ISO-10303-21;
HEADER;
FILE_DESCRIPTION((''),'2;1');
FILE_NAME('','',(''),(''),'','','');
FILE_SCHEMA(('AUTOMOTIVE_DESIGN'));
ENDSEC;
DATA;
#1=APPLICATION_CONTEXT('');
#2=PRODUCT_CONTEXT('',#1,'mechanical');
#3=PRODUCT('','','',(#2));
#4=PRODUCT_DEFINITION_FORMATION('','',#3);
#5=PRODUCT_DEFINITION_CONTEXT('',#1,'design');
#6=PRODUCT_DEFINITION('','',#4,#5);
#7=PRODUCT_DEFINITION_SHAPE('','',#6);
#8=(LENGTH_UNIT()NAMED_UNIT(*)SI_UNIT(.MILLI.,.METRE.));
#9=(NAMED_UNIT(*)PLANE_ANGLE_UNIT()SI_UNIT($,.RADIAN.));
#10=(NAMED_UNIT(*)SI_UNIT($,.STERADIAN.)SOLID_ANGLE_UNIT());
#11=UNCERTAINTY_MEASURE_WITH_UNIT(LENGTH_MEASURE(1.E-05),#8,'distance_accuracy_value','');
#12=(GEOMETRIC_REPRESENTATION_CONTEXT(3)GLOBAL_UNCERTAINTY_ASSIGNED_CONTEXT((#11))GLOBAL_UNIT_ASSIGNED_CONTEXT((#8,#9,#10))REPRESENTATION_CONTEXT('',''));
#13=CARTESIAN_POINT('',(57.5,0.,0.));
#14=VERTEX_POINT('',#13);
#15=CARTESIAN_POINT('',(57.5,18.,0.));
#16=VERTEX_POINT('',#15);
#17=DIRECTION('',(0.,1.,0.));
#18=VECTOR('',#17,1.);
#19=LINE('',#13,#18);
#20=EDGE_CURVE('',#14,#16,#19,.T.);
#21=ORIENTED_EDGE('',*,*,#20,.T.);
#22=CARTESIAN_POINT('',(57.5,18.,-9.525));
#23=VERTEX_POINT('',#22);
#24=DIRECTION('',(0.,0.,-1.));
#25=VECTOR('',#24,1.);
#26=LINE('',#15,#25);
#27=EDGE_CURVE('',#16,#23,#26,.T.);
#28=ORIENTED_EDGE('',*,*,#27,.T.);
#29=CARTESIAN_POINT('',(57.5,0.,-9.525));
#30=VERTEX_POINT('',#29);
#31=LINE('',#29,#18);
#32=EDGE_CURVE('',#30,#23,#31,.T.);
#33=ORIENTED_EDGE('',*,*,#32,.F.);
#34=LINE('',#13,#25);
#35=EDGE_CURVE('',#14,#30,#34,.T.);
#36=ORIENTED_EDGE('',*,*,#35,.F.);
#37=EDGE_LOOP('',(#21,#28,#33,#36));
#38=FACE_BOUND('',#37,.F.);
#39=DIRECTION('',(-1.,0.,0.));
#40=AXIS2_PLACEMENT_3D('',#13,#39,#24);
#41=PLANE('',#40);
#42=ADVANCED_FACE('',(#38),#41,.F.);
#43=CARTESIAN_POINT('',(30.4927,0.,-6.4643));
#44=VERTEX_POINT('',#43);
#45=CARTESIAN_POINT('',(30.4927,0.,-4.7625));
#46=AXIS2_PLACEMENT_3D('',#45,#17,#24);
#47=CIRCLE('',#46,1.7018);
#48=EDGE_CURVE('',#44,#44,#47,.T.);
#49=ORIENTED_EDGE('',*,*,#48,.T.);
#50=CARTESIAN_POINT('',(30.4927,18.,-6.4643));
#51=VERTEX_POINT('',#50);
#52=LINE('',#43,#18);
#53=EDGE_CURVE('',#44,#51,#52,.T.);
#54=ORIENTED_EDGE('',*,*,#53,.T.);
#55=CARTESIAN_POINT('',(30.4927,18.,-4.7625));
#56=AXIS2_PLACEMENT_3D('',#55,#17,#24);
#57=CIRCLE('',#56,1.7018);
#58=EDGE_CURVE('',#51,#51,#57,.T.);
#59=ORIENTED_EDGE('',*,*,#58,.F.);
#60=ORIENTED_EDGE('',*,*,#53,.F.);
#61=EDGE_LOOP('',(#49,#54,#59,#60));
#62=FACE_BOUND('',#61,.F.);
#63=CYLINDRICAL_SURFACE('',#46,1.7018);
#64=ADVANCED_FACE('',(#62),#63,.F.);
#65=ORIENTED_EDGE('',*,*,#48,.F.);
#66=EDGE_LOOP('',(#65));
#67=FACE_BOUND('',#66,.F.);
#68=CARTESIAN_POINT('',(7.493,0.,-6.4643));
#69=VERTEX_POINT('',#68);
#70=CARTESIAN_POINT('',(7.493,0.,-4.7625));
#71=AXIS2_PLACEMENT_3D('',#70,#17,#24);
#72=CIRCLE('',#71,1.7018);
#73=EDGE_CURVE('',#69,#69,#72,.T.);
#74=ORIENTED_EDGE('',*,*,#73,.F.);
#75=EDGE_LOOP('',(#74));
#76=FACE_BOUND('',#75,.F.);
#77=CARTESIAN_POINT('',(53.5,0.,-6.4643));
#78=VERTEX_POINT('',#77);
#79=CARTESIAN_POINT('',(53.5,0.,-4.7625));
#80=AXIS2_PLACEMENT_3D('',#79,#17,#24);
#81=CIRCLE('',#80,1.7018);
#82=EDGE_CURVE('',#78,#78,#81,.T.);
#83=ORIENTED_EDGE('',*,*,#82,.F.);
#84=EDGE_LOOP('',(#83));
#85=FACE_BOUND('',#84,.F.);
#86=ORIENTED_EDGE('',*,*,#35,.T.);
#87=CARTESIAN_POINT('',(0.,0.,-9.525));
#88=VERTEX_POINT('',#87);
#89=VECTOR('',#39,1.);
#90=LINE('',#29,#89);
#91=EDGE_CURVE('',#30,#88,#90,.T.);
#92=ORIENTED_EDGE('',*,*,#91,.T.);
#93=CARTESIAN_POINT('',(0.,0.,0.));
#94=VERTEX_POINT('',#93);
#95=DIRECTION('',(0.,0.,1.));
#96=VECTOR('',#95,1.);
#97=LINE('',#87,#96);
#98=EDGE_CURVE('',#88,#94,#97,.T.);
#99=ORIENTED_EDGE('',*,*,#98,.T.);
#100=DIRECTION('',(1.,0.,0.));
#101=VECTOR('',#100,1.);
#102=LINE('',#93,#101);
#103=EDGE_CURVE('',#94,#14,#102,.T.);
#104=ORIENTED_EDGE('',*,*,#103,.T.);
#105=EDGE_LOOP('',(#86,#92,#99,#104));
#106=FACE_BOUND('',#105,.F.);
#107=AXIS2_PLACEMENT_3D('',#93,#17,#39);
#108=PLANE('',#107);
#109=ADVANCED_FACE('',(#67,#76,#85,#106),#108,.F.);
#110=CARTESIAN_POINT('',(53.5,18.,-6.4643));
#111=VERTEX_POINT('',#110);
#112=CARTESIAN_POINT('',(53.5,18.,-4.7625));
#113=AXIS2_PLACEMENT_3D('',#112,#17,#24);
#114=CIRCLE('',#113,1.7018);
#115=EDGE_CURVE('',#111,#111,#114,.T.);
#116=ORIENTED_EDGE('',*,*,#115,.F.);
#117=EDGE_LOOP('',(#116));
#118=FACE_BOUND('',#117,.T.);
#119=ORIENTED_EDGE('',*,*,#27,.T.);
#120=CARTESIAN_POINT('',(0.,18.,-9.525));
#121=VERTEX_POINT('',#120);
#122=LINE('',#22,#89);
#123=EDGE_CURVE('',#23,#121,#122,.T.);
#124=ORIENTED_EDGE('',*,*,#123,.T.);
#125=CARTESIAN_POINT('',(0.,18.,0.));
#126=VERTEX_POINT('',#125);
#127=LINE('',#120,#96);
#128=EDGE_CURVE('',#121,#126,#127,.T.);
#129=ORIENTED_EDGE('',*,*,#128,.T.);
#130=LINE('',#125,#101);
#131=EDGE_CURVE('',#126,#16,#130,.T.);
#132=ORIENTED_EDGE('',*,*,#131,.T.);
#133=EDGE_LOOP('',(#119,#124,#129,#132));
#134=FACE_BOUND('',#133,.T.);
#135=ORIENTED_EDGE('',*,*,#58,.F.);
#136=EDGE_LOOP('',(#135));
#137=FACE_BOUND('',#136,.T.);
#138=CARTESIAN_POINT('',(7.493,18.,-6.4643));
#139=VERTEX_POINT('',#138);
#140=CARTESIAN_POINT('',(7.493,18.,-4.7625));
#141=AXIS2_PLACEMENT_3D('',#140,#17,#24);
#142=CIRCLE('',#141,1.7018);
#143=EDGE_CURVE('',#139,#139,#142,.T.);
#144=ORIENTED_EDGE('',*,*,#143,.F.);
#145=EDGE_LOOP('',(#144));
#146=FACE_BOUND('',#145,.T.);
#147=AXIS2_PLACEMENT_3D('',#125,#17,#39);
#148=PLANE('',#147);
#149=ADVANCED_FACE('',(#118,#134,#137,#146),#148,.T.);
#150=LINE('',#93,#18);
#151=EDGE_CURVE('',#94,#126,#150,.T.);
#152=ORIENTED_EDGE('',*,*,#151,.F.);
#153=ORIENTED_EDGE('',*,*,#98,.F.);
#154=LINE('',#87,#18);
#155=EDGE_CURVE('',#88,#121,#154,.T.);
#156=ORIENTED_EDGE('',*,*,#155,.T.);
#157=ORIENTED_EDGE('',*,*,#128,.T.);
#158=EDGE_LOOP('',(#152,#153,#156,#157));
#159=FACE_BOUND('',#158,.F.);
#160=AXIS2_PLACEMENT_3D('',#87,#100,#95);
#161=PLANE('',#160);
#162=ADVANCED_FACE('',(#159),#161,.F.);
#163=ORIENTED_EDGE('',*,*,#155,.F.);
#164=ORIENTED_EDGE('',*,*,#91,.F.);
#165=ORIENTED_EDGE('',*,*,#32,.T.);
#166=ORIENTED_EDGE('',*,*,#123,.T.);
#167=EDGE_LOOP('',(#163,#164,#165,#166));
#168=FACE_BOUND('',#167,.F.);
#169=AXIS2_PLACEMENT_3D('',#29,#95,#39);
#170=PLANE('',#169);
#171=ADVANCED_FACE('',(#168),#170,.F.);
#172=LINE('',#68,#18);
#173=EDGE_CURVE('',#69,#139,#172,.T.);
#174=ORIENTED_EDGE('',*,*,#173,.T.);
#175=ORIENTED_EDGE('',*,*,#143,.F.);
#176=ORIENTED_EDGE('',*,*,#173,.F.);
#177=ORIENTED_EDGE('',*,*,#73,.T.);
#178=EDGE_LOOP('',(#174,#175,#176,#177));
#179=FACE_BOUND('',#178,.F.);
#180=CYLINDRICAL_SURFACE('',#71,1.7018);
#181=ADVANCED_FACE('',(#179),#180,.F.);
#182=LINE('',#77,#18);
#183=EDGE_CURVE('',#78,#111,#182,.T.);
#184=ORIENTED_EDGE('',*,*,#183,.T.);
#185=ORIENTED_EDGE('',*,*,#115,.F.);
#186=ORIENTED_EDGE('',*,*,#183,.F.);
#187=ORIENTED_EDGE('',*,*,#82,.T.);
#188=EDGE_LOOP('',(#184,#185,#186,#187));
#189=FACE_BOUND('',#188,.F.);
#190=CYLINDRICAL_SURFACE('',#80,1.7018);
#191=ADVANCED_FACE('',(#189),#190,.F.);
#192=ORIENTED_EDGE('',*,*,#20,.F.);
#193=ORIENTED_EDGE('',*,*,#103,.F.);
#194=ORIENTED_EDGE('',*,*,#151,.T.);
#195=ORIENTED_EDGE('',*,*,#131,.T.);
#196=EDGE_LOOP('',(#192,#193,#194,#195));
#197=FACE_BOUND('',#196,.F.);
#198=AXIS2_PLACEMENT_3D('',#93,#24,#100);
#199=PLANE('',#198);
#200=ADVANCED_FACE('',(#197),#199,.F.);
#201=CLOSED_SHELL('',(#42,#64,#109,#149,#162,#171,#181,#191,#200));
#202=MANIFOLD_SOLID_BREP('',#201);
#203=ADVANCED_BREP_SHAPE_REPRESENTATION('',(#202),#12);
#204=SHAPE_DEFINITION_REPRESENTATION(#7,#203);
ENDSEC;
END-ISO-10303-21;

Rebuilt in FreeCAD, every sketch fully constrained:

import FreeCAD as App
import Part
import Sketcher
from FreeCAD import Vector
Q = App.Units.Quantity


def add_polygon(sketch, points):
    """Adds a closed chain of lines whose ends are joined by coincident constraints."""
    first, n = sketch.GeometryCount, len(points)
    for a, b in zip(points, points[1:] + points[:1]):
        sketch.addGeometry(Part.LineSegment(App.Vector(*a, 0), App.Vector(*b, 0)), False)
    for i in range(n):
        sketch.addConstraint(Sketcher.Constraint("Coincident", first + i, 2, first + (i + 1) % n, 1))

doc = App.newDocument("Part")
body = doc.addObject("PartDesign::Body", "Body")

# Sketch on XZ plane
sketch1 = doc.addObject("Sketcher::SketchObject", "Sketch")
body.addObject(sketch1)
sketch1.AttachmentSupport = (doc.XZ_Plane, [""])
sketch1.MapMode = "FlatFace"
add_polygon(sketch1, [(0, -10), (0, 0), (58, 0), (58, -10)])  # lines 0-3
sketch1.addConstraint([
    Sketcher.Constraint("Vertical", 0),
    Sketcher.Constraint("Horizontal", 1),
    Sketcher.Constraint("Vertical", 2),
    Sketcher.Constraint("Horizontal", 3),
    Sketcher.Constraint("Coincident", 0, 2, -1, 1),
    Sketcher.Constraint("DistanceX", 1, 1, 1, 2, Q("57.5 mm")),
    Sketcher.Constraint("DistanceY", 0, 1, 0, 2, Q("9.525 mm")),
])
pad1 = doc.addObject("PartDesign::Pad", "Pad")
body.addObject(pad1)
pad1.Profile = sketch1
pad1.Length = 18
pad1.Reversed = True

# Sketch on XZ plane
sketch2 = doc.addObject("Sketcher::SketchObject", "Sketch001")
body.addObject(sketch2)
sketch2.AttachmentSupport = (doc.XZ_Plane, [""])
sketch2.MapMode = "FlatFace"
sketch2.addGeometry([
    Part.Circle(Vector(53.5, -4.8, 0), Vector(0, 0, 1), 1.7),
    Part.Circle(Vector(7.5, -4.8, 0), Vector(0, 0, 1), 1.7),
    Part.Circle(Vector(30.5, -4.8, 0), Vector(0, 0, 1), 1.7),
], False)
sketch2.addConstraint([
    Sketcher.Constraint("Equal", 0, 1),
    Sketcher.Constraint("Equal", 1, 2),
    Sketcher.Constraint("Horizontal", 0, 3, 1, 3),
    Sketcher.Constraint("Horizontal", 1, 3, 2, 3),
    Sketcher.Constraint("Diameter", 0, Q("3.4036 mm")),
    Sketcher.Constraint("DistanceX", -1, 1, 0, 3, Q("53.5 mm")),
    Sketcher.Constraint("DistanceX", -1, 1, 1, 3, Q("7.493 mm")),
    Sketcher.Constraint("DistanceY", 0, 3, -1, 1, Q("4.7625 mm")),
    Sketcher.Constraint("DistanceX", -1, 1, 2, 3, Q("30.4927 mm")),
])
doc.recompute()
hole = doc.addObject("PartDesign::Hole", "Hole")
body.addObject(hole)
hole.Profile = sketch2
hole.ThreadType = "None"
hole.Diameter = 3.4036
hole.DepthType = "ThroughAll"

doc.recompute()
